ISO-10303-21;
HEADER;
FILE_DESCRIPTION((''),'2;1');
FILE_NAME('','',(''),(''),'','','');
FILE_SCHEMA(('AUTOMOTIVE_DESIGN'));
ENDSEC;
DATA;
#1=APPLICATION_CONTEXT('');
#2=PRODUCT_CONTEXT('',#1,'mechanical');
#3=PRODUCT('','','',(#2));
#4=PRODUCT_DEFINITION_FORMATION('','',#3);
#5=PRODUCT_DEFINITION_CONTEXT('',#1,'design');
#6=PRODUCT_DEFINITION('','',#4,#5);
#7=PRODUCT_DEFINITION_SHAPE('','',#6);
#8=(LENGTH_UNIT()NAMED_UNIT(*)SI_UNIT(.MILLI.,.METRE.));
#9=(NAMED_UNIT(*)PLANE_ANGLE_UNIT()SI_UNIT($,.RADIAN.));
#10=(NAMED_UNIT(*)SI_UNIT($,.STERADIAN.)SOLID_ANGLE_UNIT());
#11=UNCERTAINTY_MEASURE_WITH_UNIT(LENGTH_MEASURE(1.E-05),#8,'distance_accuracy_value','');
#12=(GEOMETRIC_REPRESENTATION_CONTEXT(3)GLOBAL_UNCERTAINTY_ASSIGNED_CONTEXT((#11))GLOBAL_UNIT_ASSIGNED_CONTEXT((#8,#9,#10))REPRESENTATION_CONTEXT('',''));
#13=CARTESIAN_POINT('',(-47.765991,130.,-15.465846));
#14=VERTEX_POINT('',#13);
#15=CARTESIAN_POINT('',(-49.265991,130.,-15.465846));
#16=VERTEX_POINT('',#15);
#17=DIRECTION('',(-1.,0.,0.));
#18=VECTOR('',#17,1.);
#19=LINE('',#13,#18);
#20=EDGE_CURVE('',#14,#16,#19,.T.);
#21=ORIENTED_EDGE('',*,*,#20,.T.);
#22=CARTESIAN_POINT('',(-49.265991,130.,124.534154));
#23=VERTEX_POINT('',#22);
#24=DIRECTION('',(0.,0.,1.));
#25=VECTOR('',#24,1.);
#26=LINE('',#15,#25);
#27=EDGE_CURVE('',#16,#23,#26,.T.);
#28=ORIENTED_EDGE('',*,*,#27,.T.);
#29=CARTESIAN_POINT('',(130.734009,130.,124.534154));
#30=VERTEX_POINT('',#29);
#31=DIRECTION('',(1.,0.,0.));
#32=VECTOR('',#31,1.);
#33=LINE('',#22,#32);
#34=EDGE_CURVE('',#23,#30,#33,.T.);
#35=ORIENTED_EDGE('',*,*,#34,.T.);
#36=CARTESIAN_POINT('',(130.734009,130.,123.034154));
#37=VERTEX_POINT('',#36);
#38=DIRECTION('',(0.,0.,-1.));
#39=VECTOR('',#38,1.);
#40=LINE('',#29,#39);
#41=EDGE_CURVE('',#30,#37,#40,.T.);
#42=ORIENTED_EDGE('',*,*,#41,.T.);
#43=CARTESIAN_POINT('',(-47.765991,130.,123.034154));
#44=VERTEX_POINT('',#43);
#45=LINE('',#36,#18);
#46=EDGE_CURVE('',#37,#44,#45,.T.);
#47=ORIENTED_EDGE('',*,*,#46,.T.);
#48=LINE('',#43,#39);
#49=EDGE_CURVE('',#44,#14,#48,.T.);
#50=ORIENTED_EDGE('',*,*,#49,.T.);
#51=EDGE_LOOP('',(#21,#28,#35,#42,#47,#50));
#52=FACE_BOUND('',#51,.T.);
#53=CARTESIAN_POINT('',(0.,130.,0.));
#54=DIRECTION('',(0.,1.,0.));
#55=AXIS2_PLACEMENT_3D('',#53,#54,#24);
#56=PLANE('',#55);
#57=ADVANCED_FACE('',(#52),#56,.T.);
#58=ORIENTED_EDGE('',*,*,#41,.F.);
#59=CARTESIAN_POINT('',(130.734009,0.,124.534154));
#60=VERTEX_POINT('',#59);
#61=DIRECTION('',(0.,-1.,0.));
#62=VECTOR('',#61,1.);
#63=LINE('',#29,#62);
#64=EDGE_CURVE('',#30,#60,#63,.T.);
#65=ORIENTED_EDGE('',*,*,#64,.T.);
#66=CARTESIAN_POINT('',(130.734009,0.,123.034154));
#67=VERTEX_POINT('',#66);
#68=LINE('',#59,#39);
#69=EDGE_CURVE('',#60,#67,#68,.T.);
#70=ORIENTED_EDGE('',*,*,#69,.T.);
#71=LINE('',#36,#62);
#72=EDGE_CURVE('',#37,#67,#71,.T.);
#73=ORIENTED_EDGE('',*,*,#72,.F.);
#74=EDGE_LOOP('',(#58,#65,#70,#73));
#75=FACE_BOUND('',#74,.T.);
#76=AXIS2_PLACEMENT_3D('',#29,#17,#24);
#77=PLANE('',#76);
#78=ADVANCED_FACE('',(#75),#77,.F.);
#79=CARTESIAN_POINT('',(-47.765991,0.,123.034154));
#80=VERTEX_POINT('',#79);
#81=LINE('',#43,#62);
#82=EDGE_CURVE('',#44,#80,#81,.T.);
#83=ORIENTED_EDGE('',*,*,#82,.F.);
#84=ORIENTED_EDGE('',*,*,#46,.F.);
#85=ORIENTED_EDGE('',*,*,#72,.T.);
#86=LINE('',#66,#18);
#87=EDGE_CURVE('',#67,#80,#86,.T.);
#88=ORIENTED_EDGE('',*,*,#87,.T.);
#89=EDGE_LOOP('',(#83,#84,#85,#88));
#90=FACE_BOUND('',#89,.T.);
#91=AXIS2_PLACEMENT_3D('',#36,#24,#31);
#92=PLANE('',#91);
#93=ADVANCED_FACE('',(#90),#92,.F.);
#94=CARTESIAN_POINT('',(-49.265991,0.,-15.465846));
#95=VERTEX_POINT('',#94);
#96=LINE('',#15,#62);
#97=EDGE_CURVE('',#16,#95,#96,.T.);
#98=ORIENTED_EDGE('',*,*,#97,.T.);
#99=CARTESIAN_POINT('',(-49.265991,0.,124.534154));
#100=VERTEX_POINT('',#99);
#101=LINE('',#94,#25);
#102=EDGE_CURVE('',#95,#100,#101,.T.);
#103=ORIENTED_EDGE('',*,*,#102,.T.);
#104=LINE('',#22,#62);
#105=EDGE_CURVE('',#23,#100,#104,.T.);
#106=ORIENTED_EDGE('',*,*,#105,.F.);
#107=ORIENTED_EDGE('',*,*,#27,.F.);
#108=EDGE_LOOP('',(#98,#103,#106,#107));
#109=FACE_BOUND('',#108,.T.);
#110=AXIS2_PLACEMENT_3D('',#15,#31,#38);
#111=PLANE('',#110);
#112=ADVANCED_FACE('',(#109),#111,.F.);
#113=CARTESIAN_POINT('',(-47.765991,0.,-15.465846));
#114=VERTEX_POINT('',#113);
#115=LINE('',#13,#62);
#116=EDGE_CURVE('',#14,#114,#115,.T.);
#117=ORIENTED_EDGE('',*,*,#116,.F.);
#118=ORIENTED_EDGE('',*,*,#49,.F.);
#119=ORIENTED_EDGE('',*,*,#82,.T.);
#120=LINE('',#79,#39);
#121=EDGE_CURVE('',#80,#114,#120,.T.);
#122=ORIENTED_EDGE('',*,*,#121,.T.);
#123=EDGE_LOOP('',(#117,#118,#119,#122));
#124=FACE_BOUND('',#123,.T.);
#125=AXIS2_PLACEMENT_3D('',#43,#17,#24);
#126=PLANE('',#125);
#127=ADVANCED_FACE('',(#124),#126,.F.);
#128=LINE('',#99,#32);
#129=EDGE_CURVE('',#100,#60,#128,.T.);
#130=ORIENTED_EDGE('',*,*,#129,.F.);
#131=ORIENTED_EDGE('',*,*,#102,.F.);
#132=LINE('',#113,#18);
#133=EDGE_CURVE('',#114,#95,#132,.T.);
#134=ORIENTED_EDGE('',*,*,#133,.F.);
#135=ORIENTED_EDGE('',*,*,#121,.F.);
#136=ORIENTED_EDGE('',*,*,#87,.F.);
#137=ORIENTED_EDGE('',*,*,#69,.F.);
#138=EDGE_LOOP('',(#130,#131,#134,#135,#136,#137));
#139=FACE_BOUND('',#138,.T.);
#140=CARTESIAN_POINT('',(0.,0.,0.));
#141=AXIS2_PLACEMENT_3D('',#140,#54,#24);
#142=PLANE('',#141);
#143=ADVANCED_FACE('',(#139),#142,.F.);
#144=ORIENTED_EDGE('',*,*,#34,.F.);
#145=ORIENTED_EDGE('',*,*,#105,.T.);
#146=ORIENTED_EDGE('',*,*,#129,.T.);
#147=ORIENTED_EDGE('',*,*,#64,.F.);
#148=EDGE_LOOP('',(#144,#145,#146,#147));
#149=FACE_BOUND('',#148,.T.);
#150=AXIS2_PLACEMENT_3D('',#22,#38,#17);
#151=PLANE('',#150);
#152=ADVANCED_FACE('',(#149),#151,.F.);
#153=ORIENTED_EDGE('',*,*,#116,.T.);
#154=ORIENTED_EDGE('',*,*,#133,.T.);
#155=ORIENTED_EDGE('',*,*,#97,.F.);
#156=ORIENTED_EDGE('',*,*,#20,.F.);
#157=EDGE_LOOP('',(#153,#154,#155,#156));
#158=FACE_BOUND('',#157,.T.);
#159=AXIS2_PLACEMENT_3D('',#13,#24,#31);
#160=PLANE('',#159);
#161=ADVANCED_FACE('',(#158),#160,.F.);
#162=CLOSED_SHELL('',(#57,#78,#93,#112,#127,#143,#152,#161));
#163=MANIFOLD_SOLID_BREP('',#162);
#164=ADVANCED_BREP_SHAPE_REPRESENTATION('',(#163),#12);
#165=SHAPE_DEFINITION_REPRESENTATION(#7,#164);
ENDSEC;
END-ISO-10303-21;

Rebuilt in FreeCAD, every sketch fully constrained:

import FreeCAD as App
import Part
import Sketcher


def add_polygon(sketch, points):
    """Adds a closed chain of lines whose ends are joined by coincident constraints."""
    first, n = sketch.GeometryCount, len(points)
    for a, b in zip(points, points[1:] + points[:1]):
        sketch.addGeometry(Part.LineSegment(App.Vector(*a, 0), App.Vector(*b, 0)), False)
    for i in range(n):
        sketch.addConstraint(Sketcher.Constraint("Coincident", first + i, 2, first + (i + 1) % n, 1))

doc = App.newDocument("Part")
params = doc.addObject("Spreadsheet::Sheet", "Params")
for row, (alias, value) in enumerate([
    ("sketch1_width", "180 mm"),
    ("sketch1_height", "140 mm"),
    ("sketch1_width2", "178.5 mm"),
    ("pad1_length", "130 mm"),
], start=1):
    params.set(f"A{row}", alias)
    params.set(f"B{row}", "=" + value)
    params.setAlias(f"B{row}", alias)

body = doc.addObject("PartDesign::Body", "Body")

sketch1 = body.newObject("Sketcher::SketchObject", "Sketch")
sketch1.AttachmentSupport = (doc.getObject("XZ_Plane"), [""])
sketch1.MapMode = "FlatFace"
add_polygon(sketch1, [(-49.3, -15.5), (-49.3, 124.5), (130.7, 124.5), (130.7, 123), (-47.8, 123), (-47.8, -15.5)])
sketch1.addConstraint([
    Sketcher.Constraint("Vertical", 0),
    Sketcher.Constraint("Horizontal", 1),
    Sketcher.Constraint("Vertical", 2),
    Sketcher.Constraint("Horizontal", 3),
    Sketcher.Constraint("Vertical", 4),
    Sketcher.Constraint("Horizontal", 5),
    Sketcher.Constraint("Equal", 5, 2),
    Sketcher.Constraint("DistanceX", 1, 1, 1, 2, 180.0),
    Sketcher.Constraint("DistanceY", 0, 1, 0, 2, 140.0),
    Sketcher.Constraint("DistanceX", 3, 2, 3, 1, 178.5),
    Sketcher.Constraint("DistanceX", 0, 2, -1, 1, 49.265991),
    Sketcher.Constraint("DistanceY", -1, 1, 0, 2, 124.534154),
])
sketch1.setExpression("Constraints[13]", "Params.sketch1_width")
sketch1.setExpression("Constraints[14]", "Params.sketch1_height")
sketch1.setExpression("Constraints[15]", "Params.sketch1_width2")
pad1 = body.newObject("PartDesign::Pad", "Pad")
pad1.Profile = sketch1
pad1.setExpression("Length", "Params.pad1_length")
pad1.Reversed = True

doc.recompute()
